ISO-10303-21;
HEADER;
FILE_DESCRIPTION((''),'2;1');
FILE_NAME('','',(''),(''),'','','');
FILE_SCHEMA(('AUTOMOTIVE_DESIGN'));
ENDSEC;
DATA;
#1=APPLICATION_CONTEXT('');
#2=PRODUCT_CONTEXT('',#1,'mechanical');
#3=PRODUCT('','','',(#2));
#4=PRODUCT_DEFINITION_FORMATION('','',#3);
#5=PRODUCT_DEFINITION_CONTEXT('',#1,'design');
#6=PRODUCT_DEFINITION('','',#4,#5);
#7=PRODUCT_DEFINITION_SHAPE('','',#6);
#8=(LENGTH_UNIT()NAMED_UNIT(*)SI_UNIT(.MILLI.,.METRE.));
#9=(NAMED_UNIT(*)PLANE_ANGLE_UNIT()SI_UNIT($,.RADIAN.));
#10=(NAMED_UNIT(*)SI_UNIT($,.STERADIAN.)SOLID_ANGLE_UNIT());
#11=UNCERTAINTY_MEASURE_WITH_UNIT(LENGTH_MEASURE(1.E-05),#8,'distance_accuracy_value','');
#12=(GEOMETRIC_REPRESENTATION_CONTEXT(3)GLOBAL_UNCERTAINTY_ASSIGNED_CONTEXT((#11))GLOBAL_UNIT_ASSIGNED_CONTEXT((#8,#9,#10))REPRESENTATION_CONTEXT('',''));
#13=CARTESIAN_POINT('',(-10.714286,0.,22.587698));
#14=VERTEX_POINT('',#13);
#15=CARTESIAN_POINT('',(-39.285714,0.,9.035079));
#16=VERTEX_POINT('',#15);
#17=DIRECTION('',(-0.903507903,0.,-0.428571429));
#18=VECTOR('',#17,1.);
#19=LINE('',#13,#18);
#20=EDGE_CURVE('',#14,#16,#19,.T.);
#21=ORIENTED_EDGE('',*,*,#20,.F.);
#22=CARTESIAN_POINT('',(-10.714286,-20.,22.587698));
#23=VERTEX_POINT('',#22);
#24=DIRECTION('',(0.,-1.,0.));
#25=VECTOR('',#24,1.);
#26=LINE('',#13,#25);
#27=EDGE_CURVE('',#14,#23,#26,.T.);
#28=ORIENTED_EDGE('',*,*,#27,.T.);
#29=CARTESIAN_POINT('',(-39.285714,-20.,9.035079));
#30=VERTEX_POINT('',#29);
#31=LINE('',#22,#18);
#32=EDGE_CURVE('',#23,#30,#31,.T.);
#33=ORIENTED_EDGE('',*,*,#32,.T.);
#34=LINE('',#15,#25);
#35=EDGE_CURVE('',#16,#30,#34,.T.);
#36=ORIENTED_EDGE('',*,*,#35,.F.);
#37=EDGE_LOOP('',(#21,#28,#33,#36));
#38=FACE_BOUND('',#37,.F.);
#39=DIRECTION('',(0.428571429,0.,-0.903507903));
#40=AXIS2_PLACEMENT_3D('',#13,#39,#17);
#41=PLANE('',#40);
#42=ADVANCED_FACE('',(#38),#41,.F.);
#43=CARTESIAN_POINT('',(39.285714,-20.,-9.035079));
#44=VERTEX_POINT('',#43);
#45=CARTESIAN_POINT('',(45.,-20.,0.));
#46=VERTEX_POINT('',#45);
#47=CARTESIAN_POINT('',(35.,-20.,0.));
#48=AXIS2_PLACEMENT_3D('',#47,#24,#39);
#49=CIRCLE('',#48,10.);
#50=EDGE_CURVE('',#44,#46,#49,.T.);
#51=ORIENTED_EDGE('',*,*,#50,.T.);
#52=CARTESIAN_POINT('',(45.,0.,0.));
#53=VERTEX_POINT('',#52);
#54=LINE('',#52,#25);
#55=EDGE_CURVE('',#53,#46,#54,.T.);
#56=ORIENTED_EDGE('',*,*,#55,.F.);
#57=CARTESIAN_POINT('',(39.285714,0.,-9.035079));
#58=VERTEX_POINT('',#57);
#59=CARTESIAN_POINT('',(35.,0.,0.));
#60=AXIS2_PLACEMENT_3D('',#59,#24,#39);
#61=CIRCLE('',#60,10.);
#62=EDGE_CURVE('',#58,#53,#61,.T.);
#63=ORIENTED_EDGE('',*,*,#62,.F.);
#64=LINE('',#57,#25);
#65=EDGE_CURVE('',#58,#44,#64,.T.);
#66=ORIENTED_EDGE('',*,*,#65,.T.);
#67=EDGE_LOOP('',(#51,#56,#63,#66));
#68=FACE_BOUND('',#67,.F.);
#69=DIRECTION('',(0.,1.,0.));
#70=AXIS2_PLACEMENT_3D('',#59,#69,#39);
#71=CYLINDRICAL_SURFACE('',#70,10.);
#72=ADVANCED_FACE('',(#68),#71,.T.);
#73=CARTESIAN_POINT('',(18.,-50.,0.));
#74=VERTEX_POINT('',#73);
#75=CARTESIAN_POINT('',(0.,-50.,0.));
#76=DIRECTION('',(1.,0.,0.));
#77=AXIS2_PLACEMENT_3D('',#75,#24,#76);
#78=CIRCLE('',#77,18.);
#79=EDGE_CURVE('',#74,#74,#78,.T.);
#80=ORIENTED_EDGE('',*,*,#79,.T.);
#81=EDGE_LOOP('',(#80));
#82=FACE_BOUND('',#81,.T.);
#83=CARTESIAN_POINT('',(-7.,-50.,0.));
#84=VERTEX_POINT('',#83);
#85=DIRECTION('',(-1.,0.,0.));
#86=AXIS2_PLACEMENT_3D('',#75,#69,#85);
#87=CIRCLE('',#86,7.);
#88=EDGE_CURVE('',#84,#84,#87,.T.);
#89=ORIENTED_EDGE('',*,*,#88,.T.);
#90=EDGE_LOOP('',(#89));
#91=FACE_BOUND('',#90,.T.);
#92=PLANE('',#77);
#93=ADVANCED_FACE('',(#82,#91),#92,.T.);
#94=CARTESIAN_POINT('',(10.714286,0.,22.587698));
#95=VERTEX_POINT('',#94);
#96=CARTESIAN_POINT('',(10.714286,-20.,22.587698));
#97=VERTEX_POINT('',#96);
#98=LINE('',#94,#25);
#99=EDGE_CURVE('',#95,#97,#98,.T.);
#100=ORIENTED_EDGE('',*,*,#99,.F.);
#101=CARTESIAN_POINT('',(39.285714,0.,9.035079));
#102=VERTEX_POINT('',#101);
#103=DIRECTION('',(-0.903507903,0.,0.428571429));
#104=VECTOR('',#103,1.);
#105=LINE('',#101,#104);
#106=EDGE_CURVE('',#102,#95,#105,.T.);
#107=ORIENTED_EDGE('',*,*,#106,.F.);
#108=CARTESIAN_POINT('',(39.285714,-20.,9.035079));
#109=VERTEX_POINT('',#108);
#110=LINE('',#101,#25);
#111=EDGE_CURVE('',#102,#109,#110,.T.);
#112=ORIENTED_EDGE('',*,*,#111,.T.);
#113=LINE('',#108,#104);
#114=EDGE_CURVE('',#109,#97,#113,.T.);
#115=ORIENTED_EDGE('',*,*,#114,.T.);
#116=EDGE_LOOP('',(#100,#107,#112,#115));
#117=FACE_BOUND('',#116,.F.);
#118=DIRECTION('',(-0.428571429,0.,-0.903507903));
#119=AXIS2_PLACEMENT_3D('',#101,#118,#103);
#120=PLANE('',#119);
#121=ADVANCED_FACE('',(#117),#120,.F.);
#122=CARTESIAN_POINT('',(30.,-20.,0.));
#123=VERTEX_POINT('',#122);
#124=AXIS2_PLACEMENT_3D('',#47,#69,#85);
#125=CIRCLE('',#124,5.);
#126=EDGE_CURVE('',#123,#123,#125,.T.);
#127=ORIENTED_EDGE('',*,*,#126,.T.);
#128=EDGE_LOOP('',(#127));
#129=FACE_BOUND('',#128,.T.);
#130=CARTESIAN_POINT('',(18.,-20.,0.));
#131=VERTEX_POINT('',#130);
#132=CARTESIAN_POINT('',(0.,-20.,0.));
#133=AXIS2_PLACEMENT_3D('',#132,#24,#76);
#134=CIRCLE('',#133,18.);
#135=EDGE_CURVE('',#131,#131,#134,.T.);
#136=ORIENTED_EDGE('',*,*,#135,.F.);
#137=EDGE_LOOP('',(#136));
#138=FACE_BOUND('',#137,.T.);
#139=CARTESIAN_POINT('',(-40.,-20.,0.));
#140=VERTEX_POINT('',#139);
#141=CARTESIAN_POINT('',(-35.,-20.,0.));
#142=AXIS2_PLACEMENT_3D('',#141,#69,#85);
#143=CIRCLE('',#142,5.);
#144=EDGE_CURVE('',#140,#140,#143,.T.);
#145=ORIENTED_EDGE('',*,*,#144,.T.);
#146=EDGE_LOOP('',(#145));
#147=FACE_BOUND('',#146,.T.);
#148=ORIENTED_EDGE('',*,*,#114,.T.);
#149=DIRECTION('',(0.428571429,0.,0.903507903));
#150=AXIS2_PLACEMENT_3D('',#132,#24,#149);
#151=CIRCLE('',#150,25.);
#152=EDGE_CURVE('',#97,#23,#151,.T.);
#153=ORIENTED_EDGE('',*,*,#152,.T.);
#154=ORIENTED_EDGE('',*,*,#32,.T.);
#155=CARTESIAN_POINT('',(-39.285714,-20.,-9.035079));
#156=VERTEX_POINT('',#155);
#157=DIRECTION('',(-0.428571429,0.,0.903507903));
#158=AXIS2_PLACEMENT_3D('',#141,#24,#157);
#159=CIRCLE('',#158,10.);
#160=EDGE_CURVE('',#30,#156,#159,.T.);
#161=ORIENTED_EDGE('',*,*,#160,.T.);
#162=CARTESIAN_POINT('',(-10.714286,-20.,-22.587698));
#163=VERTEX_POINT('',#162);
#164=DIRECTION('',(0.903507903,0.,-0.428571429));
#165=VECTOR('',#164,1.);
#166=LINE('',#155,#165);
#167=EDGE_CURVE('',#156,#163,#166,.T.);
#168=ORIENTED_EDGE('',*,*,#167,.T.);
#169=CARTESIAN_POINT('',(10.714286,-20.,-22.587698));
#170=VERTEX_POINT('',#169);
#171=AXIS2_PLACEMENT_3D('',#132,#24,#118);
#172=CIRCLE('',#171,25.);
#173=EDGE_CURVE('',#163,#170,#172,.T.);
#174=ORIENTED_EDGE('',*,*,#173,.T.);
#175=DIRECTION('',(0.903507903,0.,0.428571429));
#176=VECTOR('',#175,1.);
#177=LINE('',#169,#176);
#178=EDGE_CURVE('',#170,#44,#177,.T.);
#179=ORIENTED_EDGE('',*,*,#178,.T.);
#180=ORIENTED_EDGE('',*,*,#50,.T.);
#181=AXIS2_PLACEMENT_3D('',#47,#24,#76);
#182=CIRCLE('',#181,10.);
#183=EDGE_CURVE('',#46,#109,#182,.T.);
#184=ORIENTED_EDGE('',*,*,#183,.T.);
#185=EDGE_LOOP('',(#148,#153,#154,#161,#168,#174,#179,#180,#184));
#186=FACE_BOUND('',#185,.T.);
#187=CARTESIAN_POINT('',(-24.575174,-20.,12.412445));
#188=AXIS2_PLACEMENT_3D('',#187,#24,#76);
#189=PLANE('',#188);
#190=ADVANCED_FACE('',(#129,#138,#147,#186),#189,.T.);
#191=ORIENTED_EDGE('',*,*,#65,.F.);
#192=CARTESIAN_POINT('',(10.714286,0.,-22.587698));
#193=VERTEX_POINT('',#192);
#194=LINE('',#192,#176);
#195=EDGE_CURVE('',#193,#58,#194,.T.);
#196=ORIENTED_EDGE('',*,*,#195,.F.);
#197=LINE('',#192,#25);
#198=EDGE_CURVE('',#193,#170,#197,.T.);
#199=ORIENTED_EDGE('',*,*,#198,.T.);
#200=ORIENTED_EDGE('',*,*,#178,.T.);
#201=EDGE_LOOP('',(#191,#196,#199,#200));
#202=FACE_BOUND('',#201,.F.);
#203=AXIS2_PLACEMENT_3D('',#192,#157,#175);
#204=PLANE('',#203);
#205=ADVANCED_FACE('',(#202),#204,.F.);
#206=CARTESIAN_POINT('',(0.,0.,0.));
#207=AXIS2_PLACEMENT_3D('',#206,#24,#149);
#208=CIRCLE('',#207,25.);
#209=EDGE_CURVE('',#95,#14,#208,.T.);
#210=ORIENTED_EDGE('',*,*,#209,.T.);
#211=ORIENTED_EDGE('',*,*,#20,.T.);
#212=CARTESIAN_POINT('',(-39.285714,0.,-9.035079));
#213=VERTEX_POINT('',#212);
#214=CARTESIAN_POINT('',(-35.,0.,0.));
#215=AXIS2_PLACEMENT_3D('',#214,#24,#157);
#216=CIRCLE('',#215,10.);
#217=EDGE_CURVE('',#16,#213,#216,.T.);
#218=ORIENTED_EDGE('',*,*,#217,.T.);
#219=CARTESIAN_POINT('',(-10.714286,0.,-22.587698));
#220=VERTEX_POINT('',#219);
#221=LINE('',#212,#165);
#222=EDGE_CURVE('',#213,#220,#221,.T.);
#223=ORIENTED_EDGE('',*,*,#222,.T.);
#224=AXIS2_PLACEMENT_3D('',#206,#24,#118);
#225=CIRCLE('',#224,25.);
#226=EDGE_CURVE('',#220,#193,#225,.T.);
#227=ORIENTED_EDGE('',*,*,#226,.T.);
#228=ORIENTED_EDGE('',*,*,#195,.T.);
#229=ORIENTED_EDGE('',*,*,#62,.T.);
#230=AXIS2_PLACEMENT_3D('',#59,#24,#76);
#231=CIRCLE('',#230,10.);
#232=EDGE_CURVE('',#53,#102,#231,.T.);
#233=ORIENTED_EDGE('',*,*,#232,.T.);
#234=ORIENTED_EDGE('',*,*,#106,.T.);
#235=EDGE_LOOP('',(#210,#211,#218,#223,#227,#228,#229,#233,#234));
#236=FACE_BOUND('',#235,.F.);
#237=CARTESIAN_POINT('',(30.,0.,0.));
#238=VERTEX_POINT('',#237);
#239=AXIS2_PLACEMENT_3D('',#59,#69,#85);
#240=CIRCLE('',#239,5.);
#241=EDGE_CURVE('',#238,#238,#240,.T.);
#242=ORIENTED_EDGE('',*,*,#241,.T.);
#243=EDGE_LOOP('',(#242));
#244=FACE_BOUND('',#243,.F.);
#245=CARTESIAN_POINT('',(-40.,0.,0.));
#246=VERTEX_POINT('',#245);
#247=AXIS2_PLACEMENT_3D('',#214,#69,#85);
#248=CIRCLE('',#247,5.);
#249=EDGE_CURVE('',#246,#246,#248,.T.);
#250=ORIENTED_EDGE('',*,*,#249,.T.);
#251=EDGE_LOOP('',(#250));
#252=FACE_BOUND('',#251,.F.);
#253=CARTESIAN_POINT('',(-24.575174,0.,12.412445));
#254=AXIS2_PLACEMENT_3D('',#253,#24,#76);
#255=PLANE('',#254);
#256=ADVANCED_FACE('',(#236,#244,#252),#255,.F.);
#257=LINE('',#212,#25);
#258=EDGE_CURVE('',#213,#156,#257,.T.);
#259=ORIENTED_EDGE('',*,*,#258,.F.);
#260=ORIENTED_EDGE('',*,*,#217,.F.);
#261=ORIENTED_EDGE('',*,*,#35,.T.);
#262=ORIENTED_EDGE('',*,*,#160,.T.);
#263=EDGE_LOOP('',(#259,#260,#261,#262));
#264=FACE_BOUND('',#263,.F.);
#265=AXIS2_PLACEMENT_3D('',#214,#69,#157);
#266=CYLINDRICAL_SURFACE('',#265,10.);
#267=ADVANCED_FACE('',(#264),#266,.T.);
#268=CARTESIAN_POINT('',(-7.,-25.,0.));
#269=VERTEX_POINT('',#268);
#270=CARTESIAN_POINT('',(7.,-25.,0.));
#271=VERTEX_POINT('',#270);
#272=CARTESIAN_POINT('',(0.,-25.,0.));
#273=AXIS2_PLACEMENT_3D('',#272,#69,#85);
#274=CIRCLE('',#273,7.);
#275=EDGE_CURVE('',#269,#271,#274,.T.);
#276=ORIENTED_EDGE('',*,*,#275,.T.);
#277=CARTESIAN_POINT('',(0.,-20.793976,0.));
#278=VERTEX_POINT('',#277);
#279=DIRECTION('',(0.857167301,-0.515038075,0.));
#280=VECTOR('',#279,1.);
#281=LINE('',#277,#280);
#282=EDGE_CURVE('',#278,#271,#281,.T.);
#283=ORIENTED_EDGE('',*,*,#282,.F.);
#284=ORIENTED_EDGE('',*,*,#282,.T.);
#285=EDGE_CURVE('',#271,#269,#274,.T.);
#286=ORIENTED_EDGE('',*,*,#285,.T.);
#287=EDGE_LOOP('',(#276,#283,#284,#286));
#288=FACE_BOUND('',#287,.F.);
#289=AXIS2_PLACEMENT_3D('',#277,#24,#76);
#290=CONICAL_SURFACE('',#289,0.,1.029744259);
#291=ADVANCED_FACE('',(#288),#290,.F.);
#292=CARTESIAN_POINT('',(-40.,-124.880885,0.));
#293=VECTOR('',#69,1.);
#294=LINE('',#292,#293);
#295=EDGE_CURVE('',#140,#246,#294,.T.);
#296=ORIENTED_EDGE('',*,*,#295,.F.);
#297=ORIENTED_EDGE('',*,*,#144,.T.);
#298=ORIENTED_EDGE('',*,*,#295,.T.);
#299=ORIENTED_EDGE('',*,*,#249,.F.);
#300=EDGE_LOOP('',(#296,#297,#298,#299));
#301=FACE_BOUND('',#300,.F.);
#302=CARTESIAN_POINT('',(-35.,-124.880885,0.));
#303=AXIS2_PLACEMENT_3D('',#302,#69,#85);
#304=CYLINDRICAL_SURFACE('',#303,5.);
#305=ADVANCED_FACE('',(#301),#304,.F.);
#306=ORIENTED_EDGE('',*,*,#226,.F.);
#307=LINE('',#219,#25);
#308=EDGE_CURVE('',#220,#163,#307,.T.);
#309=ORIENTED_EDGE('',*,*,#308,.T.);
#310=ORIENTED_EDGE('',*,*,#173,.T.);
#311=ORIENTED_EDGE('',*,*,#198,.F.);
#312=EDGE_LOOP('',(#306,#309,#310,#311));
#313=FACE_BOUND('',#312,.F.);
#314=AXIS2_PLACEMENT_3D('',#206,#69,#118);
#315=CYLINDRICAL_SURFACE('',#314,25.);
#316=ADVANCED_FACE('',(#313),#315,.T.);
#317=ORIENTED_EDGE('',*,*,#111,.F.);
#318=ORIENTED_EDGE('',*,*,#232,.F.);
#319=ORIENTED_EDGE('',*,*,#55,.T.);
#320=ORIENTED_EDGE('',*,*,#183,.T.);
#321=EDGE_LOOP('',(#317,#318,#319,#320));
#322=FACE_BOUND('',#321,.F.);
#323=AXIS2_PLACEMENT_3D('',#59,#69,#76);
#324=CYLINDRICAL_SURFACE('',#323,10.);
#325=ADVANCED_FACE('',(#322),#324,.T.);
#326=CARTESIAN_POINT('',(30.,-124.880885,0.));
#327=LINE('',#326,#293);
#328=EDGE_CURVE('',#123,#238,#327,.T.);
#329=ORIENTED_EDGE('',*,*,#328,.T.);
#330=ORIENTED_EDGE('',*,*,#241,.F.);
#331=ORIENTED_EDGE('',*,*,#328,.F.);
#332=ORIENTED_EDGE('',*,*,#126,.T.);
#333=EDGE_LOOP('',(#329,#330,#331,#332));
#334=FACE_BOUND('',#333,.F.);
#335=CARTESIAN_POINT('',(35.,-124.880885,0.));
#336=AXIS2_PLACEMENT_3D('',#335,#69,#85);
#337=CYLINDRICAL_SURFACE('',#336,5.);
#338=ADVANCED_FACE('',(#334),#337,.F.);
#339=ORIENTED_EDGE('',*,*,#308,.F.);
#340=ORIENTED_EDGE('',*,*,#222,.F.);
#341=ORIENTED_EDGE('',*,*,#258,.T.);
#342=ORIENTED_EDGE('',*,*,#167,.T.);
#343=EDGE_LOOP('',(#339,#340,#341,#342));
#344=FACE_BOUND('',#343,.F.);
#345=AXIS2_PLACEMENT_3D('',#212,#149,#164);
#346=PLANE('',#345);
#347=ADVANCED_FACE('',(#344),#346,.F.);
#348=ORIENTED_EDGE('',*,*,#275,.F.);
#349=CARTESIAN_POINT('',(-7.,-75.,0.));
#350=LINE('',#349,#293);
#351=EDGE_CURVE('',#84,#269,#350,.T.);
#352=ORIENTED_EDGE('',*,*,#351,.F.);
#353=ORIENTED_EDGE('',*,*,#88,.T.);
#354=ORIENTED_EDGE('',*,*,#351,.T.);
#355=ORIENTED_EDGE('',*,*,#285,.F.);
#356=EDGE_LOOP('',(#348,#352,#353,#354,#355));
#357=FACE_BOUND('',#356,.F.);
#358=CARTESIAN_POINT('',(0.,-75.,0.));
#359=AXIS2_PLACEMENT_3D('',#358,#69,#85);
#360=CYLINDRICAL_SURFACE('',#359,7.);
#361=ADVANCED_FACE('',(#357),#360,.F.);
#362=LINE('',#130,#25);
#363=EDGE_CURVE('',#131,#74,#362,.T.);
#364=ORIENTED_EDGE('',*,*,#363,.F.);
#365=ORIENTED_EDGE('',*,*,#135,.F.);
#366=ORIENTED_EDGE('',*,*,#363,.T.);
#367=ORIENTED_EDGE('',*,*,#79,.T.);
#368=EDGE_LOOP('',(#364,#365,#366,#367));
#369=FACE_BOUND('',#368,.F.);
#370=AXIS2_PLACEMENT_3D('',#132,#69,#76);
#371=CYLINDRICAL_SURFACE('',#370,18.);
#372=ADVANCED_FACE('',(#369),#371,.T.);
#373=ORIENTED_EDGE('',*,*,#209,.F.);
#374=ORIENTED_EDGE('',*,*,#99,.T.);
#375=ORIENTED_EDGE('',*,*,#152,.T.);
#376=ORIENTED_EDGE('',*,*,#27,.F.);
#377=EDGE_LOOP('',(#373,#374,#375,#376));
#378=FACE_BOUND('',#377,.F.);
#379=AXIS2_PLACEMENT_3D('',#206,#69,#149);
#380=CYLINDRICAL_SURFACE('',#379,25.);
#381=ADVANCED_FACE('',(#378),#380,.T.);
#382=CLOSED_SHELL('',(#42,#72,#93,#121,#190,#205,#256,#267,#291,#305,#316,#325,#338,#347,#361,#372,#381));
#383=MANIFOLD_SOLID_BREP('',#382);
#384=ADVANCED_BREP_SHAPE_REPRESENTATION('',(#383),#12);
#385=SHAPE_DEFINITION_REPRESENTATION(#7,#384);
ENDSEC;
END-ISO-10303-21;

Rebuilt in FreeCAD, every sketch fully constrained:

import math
import FreeCAD as App
import Part
import Sketcher
from FreeCAD import Vector

doc = App.newDocument("Part")
params = doc.addObject("Spreadsheet::Sheet", "Params")
for row, (alias, value) in enumerate([
    ("sketch1_radius", "10 mm"),
    ("sketch1_radius2", "25 mm"),
    ("pad1_length", "20 mm"),
    ("sketch2_diameter", "10 mm"),
    ("hole_diameter", "10 mm"),
    ("sketch3_diameter", "36 mm"),
    ("pad2_length", "30 mm"),
    ("sketch4_diameter", "14 mm"),
    ("hole2_diameter", "14 mm"),
    ("hole2_depth", "25 mm"),
], start=1):
    params.set(f"A{row}", alias)
    params.set(f"B{row}", "=" + value)
    params.setAlias(f"B{row}", alias)

body = doc.addObject("PartDesign::Body", "Body")

# Sketch on XZ plane
sketch1 = doc.addObject("Sketcher::SketchObject", "Sketch")
body.addObject(sketch1)
sketch1.AttachmentSupport = (doc.XZ_Plane, [""])
sketch1.MapMode = "FlatFace"
sketch1.addGeometry([
    Part.LineSegment(Vector(-10.714286, 22.587698, 0), Vector(-39.285714, 9.035079, 0)),  # 0
    Part.ArcOfCircle(Part.Circle(Vector(-35, 0, 0), Vector(0, 0, 1), 10), math.radians(115.376934), math.radians(244.623066)),  # 1
    Part.LineSegment(Vector(-39.285714, -9.035079, 0), Vector(-10.714286, -22.587698, 0)),  # 2
    Part.ArcOfCircle(Part.Circle(Vector(0, 0, 0), Vector(0, 0, 1), 25), math.radians(-115.376934), math.radians(-64.623066)),  # 3
    Part.LineSegment(Vector(10.714286, -22.587698, 0), Vector(39.285714, -9.035079, 0)),  # 4
    Part.ArcOfCircle(Part.Circle(Vector(35, 0, 0), Vector(0, 0, 1), 10), math.radians(-64.623066), math.radians(0)),  # 5
    Part.ArcOfCircle(Part.Circle(Vector(35, 0, 0), Vector(0, 0, 1), 10), math.radians(0), math.radians(64.623066)),  # 6
    Part.LineSegment(Vector(39.285714, 9.035079, 0), Vector(10.714286, 22.587698, 0)),  # 7
    Part.ArcOfCircle(Part.Circle(Vector(0, 0, 0), Vector(0, 0, 1), 25), math.radians(64.623066), math.radians(115.376934)),  # 8
], False)
sketch1.addConstraint([
    Sketcher.Constraint("Tangent", 0, 2, 1, 1),
    Sketcher.Constraint("Tangent", 1, 2, 2, 1),
    Sketcher.Constraint("Tangent", 2, 2, 3, 1),
    Sketcher.Constraint("Tangent", 3, 2, 4, 1),
    Sketcher.Constraint("Tangent", 4, 2, 5, 1),
    Sketcher.Constraint("Tangent", 5, 2, 6, 1),
    Sketcher.Constraint("Tangent", 6, 2, 7, 1),
    Sketcher.Constraint("Tangent", 7, 2, 8, 1),
    Sketcher.Constraint("Tangent", 8, 2, 0, 1),
    Sketcher.Constraint("Coincident", 3, 3, -1, 1),
    Sketcher.Constraint("Coincident", 8, 3, -1, 1),
    Sketcher.Constraint("Equal", 1, 5),
    Sketcher.Constraint("Equal", 5, 6),
    Sketcher.Constraint("Equal", 3, 8),
    Sketcher.Constraint("Symmetric", 1, 3, 5, 3, -1, 1),
    Sketcher.Constraint("PointOnObject", 1, 3, -1),
    Sketcher.Constraint("PointOnObject", 5, 2, -1),
    Sketcher.Constraint("Radius", 1, 10.0),
    Sketcher.Constraint("Radius", 3, 25.0),
    Sketcher.Constraint("DistanceX", 1, 3, -1, 1, 35.0),
])
sketch1.setExpression("Constraints[17]", "Params.sketch1_radius")
sketch1.setExpression("Constraints[18]", "Params.sketch1_radius2")
pad1 = doc.addObject("PartDesign::Pad", "Pad")
body.addObject(pad1)
pad1.Profile = sketch1
pad1.setExpression("Length", "Params.pad1_length")

# Sketch on XZ plane
sketch2 = doc.addObject("Sketcher::SketchObject", "Sketch001")
body.addObject(sketch2)
sketch2.AttachmentSupport = (doc.XZ_Plane, [""])
sketch2.MapMode = "FlatFace"
sketch2.AttachmentOffset = App.Placement(Vector(0, 0, 20), App.Rotation())
sketch2.addGeometry([
    Part.Circle(Vector(-35, 0, 0), Vector(0, 0, 1), 5),
    Part.Circle(Vector(35, 0, 0), Vector(0, 0, 1), 5),
], False)
sketch2.addConstraint([
    Sketcher.Constraint("Equal", 0, 1),
    Sketcher.Constraint("Symmetric", 0, 3, 1, 3, -1, 1),
    Sketcher.Constraint("PointOnObject", 0, 3, -1),
    Sketcher.Constraint("Diameter", 0, 10.0),
    Sketcher.Constraint("DistanceX", 0, 3, -1, 1, 35.0),
])
sketch2.setExpression("Constraints[3]", "Params.sketch2_diameter")
doc.recompute()
hole = doc.addObject("PartDesign::Hole", "Hole")
body.addObject(hole)
hole.Profile = sketch2
hole.ThreadType = "None"
hole.setExpression("Diameter", "Params.hole_diameter")
hole.DepthType = "ThroughAll"

# Sketch on XZ plane
sketch3 = doc.addObject("Sketcher::SketchObject", "Sketch002")
body.addObject(sketch3)
sketch3.AttachmentSupport = (doc.XZ_Plane, [""])
sketch3.MapMode = "FlatFace"
sketch3.AttachmentOffset = App.Placement(Vector(0, 0, 20), App.Rotation())
sketch3.addGeometry(Part.Circle(Vector(0, 0, 0), Vector(0, 0, 1), 18), False)
sketch3.addConstraint([
    Sketcher.Constraint("Coincident", 0, 3, -1, 1),
    Sketcher.Constraint("Diameter", 0, 36.0),
])
sketch3.setExpression("Constraints[1]", "Params.sketch3_diameter")
pad2 = doc.addObject("PartDesign::Pad", "Pad001")
body.addObject(pad2)
pad2.Profile = sketch3
pad2.setExpression("Length", "Params.pad2_length")

# Sketch on XZ plane
sketch4 = doc.addObject("Sketcher::SketchObject", "Sketch003")
body.addObject(sketch4)
sketch4.AttachmentSupport = (doc.XZ_Plane, [""])
sketch4.MapMode = "FlatFace"
sketch4.AttachmentOffset = App.Placement(Vector(0, 0, 50), App.Rotation())
sketch4.addGeometry(Part.Circle(Vector(0, 0, 0), Vector(0, 0, 1), 7), False)
sketch4.addConstraint([
    Sketcher.Constraint("Coincident", 0, 3, -1, 1),
    Sketcher.Constraint("Diameter", 0, 14.0),
])
sketch4.setExpression("Constraints[1]", "Params.sketch4_diameter")
doc.recompute()
hole2 = doc.addObject("PartDesign::Hole", "Hole001")
body.addObject(hole2)
hole2.Profile = sketch4
hole2.ThreadType = "None"
hole2.setExpression("Diameter", "Params.hole2_diameter")
hole2.DepthType = "Dimension"
hole2.setExpression("Depth", "Params.hole2_depth")
hole2.DrillPoint = "Angled"
hole2.DrillPointAngle = 118

doc.recompute()
